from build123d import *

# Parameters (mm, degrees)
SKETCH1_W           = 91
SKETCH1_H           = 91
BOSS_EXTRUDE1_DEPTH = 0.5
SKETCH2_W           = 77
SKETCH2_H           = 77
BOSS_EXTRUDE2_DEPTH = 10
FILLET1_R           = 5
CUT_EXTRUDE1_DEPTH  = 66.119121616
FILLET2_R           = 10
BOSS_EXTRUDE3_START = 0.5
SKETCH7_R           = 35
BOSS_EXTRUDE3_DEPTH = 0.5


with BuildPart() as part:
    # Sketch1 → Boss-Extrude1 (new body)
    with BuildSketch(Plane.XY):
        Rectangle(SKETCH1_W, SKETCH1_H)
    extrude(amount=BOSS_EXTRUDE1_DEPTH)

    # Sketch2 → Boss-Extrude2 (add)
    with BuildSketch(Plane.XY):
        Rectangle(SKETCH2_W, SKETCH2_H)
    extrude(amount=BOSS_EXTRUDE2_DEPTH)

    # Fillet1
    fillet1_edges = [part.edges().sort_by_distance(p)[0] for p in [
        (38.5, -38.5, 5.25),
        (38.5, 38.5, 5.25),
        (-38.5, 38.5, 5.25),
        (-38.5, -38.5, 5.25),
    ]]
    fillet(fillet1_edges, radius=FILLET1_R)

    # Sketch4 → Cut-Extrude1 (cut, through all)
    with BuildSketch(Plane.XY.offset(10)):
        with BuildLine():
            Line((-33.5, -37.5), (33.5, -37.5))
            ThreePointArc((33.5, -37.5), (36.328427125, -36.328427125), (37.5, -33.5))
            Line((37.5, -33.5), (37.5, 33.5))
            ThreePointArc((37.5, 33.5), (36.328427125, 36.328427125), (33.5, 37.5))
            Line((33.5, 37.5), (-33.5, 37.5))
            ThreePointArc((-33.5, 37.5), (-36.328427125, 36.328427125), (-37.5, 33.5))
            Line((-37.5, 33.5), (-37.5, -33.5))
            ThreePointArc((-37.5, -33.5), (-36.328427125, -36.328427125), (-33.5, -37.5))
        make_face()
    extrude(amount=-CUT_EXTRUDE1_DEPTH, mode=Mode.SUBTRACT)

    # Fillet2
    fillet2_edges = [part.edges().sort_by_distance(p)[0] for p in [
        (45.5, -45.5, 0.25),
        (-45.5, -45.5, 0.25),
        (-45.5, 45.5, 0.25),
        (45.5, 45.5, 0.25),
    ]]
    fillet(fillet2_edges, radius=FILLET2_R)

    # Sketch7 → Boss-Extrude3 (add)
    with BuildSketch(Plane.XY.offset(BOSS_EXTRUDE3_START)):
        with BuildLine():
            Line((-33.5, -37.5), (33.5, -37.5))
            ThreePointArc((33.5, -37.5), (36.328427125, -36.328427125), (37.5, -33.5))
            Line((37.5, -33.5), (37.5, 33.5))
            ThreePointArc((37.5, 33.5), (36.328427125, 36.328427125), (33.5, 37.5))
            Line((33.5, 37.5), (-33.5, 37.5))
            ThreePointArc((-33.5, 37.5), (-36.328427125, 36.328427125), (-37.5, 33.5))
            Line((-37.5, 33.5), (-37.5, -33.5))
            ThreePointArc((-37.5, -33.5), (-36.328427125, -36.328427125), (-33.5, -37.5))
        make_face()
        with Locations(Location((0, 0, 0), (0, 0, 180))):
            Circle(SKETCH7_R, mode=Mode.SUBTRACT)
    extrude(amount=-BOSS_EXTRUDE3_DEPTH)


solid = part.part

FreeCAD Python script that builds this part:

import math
import FreeCAD as App
import Part
import Sketcher
Q = App.Units.Quantity


def edges_at(feature, points):
    """Names of the edges that pass closest to the given points."""
    edges = feature.Shape.Edges
    near = lambda p: min(range(len(edges)), key=lambda i: edges[i].distToShape(Part.Vertex(*p))[0])
    return sorted({f"Edge{near(p) + 1}" for p in points})


def add_polygon(sketch, points):
    """Adds a closed chain of lines whose ends are joined by coincident constraints."""
    first, n = sketch.GeometryCount, len(points)
    for a, b in zip(points, points[1:] + points[:1]):
        sketch.addGeometry(Part.LineSegment(App.Vector(*a, 0), App.Vector(*b, 0)), False)
    for i in range(n):
        sketch.addConstraint(Sketcher.Constraint("Coincident", first + i, 2, first + (i + 1) % n, 1))

doc = App.newDocument("Part")
params = doc.addObject("Spreadsheet::Sheet", "Params")
for row, (alias, value) in enumerate([
    ("sketch1_width", "91 mm"),
    ("pad1_length", "0.5 mm"),
    ("sketch2_width", "77 mm"),
    ("pad2_length", "10 mm"),
    ("fillet_radius", "5 mm"),
    ("sketch3_radius", "4 mm"),
    ("sketch3_width", "67 mm"),
    ("fillet2_radius", "10 mm"),
    ("sketch4_diameter", "70 mm"),
    ("sketch4_radius", "4 mm"),
    ("sketch4_width", "67 mm"),
    ("pad3_length", "0.5 mm"),
], start=1):
    params.set(f"A{row}", alias)
    params.set(f"B{row}", "=" + value)
    params.setAlias(f"B{row}", alias)

body = doc.addObject("PartDesign::Body", "Body")

# Sketch on XY plane
sketch1 = body.newObject("Sketcher::SketchObject", "Sketch")
sketch1.AttachmentSupport = (doc.getObject("XY_Plane"), [""])
sketch1.MapMode = "FlatFace"
add_polygon(sketch1, [(-46, 46), (-46, -46), (46, -46), (46, 46)])  # lines 0-3
sketch1.addConstraint([
    Sketcher.Constraint("Vertical", 0),
    Sketcher.Constraint("Horizontal", 1),
    Sketcher.Constraint("Vertical", 2),
    Sketcher.Constraint("Horizontal", 3),
    Sketcher.Constraint("Symmetric", 0, 2, 2, 2, -1, 1),
    Sketcher.Constraint("Equal", 3, 0),
    Sketcher.Constraint("DistanceX", 1, 1, 1, 2, Q("91 mm")),
])
sketch1.setExpression("Constraints[10]", "Params.sketch1_width")
pad1 = body.newObject("PartDesign::Pad", "Pad")
pad1.Profile = sketch1
pad1.setExpression("Length", "Params.pad1_length")

# Sketch on XY plane
sketch2 = body.newObject("Sketcher::SketchObject", "Sketch001")
sketch2.AttachmentSupport = (doc.getObject("XY_Plane"), [""])
sketch2.MapMode = "FlatFace"
add_polygon(sketch2, [(-38, 38), (-38, -38), (38, -38), (38, 38)])  # lines 0-3
sketch2.addConstraint([
    Sketcher.Constraint("Vertical", 0),
    Sketcher.Constraint("Horizontal", 1),
    Sketcher.Constraint("Vertical", 2),
    Sketcher.Constraint("Horizontal", 3),
    Sketcher.Constraint("Symmetric", 0, 2, 2, 2, -1, 1),
    Sketcher.Constraint("Equal", 3, 0),
    Sketcher.Constraint("DistanceX", 1, 1, 1, 2, Q("77 mm")),
])
sketch2.setExpression("Constraints[10]", "Params.sketch2_width")
pad2 = body.newObject("PartDesign::Pad", "Pad001")
pad2.Profile = sketch2
pad2.setExpression("Length", "Params.pad2_length")
doc.recompute()

fillet = body.newObject("PartDesign::Fillet", "Fillet")
fillet.Base = (pad2, edges_at(pad2, [
    (38.5, -38.5, 5.25),
    (38.5, 38.5, 5.25),
    (-38.5, 38.5, 5.25),
    (-38.5, -38.5, 5.25),
]))
fillet.setExpression("Radius", "Params.fillet_radius")

# Sketch on XY plane
sketch3 = body.newObject("Sketcher::SketchObject", "Sketch002")
sketch3.AttachmentSupport = (doc.getObject("XY_Plane"), [""])
sketch3.MapMode = "FlatFace"
sketch3.AttachmentOffset = App.Placement(App.Vector(0, 0, 10), App.Rotation())
sketch3.addGeometry([
    Part.LineSegment(App.Vector(-33.5, -37.5, 0), App.Vector(33.5, -37.5, 0)),  # 0
    Part.ArcOfCircle(Part.Circle(App.Vector(33.5, -33.5, 0), App.Vector(0, 0, 1), 4), math.radians(-90), math.radians(0)),  # 1
    Part.LineSegment(App.Vector(37.5, -33.5, 0), App.Vector(37.5, 33.5, 0)),  # 2
    Part.ArcOfCircle(Part.Circle(App.Vector(33.5, 33.5, 0), App.Vector(0, 0, 1), 4), math.radians(0), math.radians(90)),  # 3
    Part.LineSegment(App.Vector(33.5, 37.5, 0), App.Vector(-33.5, 37.5, 0)),  # 4
    Part.ArcOfCircle(Part.Circle(App.Vector(-33.5, 33.5, 0), App.Vector(0, 0, 1), 4), math.radians(90), math.radians(180)),  # 5
    Part.LineSegment(App.Vector(-37.5, 33.5, 0), App.Vector(-37.5, -33.5, 0)),  # 6
    Part.ArcOfCircle(Part.Circle(App.Vector(-33.5, -33.5, 0), App.Vector(0, 0, 1), 4), math.radians(180), math.radians(270)),  # 7
], False)
sketch3.addConstraint([
    Sketcher.Constraint("Tangent", 0, 2, 1, 1),
    Sketcher.Constraint("Tangent", 1, 2, 2, 1),
    Sketcher.Constraint("Tangent", 2, 2, 3, 1),
    Sketcher.Constraint("Tangent", 3, 2, 4, 1),
    Sketcher.Constraint("Tangent", 4, 2, 5, 1),
    Sketcher.Constraint("Tangent", 5, 2, 6, 1),
    Sketcher.Constraint("Tangent", 6, 2, 7, 1),
    Sketcher.Constraint("Tangent", 7, 2, 0, 1),
    Sketcher.Constraint("Horizontal", 0),
    Sketcher.Constraint("Vertical", 2),
    Sketcher.Constraint("Horizontal", 4),
    Sketcher.Constraint("Vertical", 6),
    Sketcher.Constraint("Equal", 1, 3),
    Sketcher.Constraint("Equal", 3, 5),
    Sketcher.Constraint("Equal", 5, 7),
    Sketcher.Constraint("Symmetric", 1, 3, 5, 3, -1, 1),
    Sketcher.Constraint("Equal", 4, 2),
    Sketcher.Constraint("Radius", 1, Q("4 mm")),
    Sketcher.Constraint("DistanceX", 0, 1, 0, 2, Q("67 mm")),
])
sketch3.setExpression("Constraints[17]", "Params.sketch3_radius")
sketch3.setExpression("Constraints[18]", "Params.sketch3_width")
pocket1 = body.newObject("PartDesign::Pocket", "Pocket")
pocket1.Profile = sketch3
pocket1.Type = "ThroughAll"
doc.recompute()

fillet2 = body.newObject("PartDesign::Fillet", "Fillet001")
fillet2.Base = (pocket1, edges_at(pocket1, [
    (45.5, -45.5, 0.25),
    (-45.5, -45.5, 0.25),
    (-45.5, 45.5, 0.25),
    (45.5, 45.5, 0.25),
]))
fillet2.setExpression("Radius", "Params.fillet2_radius")

# Sketch on XY plane
sketch4 = body.newObject("Sketcher::SketchObject", "Sketch003")
sketch4.AttachmentSupport = (doc.getObject("XY_Plane"), [""])
sketch4.MapMode = "FlatFace"
sketch4.AttachmentOffset = App.Placement(App.Vector(0, 0, 0.5), App.Rotation())
sketch4.addGeometry([
    Part.LineSegment(App.Vector(-33.5, -37.5, 0), App.Vector(33.5, -37.5, 0)),  # 0
    Part.ArcOfCircle(Part.Circle(App.Vector(33.5, -33.5, 0), App.Vector(0, 0, 1), 4), math.radians(-90), math.radians(0)),  # 1
    Part.LineSegment(App.Vector(37.5, -33.5, 0), App.Vector(37.5, 33.5, 0)),  # 2
    Part.ArcOfCircle(Part.Circle(App.Vector(33.5, 33.5, 0), App.Vector(0, 0, 1), 4), math.radians(0), math.radians(90)),  # 3
    Part.LineSegment(App.Vector(33.5, 37.5, 0), App.Vector(-33.5, 37.5, 0)),  # 4
    Part.ArcOfCircle(Part.Circle(App.Vector(-33.5, 33.5, 0), App.Vector(0, 0, 1), 4), math.radians(90), math.radians(180)),  # 5
    Part.LineSegment(App.Vector(-37.5, 33.5, 0), App.Vector(-37.5, -33.5, 0)),  # 6
    Part.ArcOfCircle(Part.Circle(App.Vector(-33.5, -33.5, 0), App.Vector(0, 0, 1), 4), math.radians(180), math.radians(270)),  # 7
    Part.Circle(App.Vector(0, 0, 0), App.Vector(0, 0, 1), 35),  # 8
], False)
sketch4.addConstraint([
    Sketcher.Constraint("Tangent", 0, 2, 1, 1),
    Sketcher.Constraint("Tangent", 1, 2, 2, 1),
    Sketcher.Constraint("Tangent", 2, 2, 3, 1),
    Sketcher.Constraint("Tangent", 3, 2, 4, 1),
    Sketcher.Constraint("Tangent", 4, 2, 5, 1),
    Sketcher.Constraint("Tangent", 5, 2, 6, 1),
    Sketcher.Constraint("Tangent", 6, 2, 7, 1),
    Sketcher.Constraint("Tangent", 7, 2, 0, 1),
    Sketcher.Constraint("Horizontal", 0),
    Sketcher.Constraint("Vertical", 2),
    Sketcher.Constraint("Horizontal", 4),
    Sketcher.Constraint("Vertical", 6),
    Sketcher.Constraint("Coincident", 8, 3, -1, 1),
    Sketcher.Constraint("Equal", 1, 3),
    Sketcher.Constraint("Equal", 3, 5),
    Sketcher.Constraint("Equal", 5, 7),
    Sketcher.Constraint("Symmetric", 1, 3, 5, 3, -1, 1),
    Sketcher.Constraint("Equal", 4, 2),
    Sketcher.Constraint("Diameter", 8, Q("70 mm")),
    Sketcher.Constraint("Radius", 1, Q("4 mm")),
    Sketcher.Constraint("DistanceX", 0, 1, 0, 2, Q("67 mm")),
])
sketch4.setExpression("Constraints[18]", "Params.sketch4_diameter")
sketch4.setExpression("Constraints[19]", "Params.sketch4_radius")
sketch4.setExpression("Constraints[20]", "Params.sketch4_width")
pad3 = body.newObject("PartDesign::Pad", "Pad002")
pad3.Profile = sketch4
pad3.setExpression("Length", "Params.pad3_length")
pad3.Reversed = True

doc.recompute()
